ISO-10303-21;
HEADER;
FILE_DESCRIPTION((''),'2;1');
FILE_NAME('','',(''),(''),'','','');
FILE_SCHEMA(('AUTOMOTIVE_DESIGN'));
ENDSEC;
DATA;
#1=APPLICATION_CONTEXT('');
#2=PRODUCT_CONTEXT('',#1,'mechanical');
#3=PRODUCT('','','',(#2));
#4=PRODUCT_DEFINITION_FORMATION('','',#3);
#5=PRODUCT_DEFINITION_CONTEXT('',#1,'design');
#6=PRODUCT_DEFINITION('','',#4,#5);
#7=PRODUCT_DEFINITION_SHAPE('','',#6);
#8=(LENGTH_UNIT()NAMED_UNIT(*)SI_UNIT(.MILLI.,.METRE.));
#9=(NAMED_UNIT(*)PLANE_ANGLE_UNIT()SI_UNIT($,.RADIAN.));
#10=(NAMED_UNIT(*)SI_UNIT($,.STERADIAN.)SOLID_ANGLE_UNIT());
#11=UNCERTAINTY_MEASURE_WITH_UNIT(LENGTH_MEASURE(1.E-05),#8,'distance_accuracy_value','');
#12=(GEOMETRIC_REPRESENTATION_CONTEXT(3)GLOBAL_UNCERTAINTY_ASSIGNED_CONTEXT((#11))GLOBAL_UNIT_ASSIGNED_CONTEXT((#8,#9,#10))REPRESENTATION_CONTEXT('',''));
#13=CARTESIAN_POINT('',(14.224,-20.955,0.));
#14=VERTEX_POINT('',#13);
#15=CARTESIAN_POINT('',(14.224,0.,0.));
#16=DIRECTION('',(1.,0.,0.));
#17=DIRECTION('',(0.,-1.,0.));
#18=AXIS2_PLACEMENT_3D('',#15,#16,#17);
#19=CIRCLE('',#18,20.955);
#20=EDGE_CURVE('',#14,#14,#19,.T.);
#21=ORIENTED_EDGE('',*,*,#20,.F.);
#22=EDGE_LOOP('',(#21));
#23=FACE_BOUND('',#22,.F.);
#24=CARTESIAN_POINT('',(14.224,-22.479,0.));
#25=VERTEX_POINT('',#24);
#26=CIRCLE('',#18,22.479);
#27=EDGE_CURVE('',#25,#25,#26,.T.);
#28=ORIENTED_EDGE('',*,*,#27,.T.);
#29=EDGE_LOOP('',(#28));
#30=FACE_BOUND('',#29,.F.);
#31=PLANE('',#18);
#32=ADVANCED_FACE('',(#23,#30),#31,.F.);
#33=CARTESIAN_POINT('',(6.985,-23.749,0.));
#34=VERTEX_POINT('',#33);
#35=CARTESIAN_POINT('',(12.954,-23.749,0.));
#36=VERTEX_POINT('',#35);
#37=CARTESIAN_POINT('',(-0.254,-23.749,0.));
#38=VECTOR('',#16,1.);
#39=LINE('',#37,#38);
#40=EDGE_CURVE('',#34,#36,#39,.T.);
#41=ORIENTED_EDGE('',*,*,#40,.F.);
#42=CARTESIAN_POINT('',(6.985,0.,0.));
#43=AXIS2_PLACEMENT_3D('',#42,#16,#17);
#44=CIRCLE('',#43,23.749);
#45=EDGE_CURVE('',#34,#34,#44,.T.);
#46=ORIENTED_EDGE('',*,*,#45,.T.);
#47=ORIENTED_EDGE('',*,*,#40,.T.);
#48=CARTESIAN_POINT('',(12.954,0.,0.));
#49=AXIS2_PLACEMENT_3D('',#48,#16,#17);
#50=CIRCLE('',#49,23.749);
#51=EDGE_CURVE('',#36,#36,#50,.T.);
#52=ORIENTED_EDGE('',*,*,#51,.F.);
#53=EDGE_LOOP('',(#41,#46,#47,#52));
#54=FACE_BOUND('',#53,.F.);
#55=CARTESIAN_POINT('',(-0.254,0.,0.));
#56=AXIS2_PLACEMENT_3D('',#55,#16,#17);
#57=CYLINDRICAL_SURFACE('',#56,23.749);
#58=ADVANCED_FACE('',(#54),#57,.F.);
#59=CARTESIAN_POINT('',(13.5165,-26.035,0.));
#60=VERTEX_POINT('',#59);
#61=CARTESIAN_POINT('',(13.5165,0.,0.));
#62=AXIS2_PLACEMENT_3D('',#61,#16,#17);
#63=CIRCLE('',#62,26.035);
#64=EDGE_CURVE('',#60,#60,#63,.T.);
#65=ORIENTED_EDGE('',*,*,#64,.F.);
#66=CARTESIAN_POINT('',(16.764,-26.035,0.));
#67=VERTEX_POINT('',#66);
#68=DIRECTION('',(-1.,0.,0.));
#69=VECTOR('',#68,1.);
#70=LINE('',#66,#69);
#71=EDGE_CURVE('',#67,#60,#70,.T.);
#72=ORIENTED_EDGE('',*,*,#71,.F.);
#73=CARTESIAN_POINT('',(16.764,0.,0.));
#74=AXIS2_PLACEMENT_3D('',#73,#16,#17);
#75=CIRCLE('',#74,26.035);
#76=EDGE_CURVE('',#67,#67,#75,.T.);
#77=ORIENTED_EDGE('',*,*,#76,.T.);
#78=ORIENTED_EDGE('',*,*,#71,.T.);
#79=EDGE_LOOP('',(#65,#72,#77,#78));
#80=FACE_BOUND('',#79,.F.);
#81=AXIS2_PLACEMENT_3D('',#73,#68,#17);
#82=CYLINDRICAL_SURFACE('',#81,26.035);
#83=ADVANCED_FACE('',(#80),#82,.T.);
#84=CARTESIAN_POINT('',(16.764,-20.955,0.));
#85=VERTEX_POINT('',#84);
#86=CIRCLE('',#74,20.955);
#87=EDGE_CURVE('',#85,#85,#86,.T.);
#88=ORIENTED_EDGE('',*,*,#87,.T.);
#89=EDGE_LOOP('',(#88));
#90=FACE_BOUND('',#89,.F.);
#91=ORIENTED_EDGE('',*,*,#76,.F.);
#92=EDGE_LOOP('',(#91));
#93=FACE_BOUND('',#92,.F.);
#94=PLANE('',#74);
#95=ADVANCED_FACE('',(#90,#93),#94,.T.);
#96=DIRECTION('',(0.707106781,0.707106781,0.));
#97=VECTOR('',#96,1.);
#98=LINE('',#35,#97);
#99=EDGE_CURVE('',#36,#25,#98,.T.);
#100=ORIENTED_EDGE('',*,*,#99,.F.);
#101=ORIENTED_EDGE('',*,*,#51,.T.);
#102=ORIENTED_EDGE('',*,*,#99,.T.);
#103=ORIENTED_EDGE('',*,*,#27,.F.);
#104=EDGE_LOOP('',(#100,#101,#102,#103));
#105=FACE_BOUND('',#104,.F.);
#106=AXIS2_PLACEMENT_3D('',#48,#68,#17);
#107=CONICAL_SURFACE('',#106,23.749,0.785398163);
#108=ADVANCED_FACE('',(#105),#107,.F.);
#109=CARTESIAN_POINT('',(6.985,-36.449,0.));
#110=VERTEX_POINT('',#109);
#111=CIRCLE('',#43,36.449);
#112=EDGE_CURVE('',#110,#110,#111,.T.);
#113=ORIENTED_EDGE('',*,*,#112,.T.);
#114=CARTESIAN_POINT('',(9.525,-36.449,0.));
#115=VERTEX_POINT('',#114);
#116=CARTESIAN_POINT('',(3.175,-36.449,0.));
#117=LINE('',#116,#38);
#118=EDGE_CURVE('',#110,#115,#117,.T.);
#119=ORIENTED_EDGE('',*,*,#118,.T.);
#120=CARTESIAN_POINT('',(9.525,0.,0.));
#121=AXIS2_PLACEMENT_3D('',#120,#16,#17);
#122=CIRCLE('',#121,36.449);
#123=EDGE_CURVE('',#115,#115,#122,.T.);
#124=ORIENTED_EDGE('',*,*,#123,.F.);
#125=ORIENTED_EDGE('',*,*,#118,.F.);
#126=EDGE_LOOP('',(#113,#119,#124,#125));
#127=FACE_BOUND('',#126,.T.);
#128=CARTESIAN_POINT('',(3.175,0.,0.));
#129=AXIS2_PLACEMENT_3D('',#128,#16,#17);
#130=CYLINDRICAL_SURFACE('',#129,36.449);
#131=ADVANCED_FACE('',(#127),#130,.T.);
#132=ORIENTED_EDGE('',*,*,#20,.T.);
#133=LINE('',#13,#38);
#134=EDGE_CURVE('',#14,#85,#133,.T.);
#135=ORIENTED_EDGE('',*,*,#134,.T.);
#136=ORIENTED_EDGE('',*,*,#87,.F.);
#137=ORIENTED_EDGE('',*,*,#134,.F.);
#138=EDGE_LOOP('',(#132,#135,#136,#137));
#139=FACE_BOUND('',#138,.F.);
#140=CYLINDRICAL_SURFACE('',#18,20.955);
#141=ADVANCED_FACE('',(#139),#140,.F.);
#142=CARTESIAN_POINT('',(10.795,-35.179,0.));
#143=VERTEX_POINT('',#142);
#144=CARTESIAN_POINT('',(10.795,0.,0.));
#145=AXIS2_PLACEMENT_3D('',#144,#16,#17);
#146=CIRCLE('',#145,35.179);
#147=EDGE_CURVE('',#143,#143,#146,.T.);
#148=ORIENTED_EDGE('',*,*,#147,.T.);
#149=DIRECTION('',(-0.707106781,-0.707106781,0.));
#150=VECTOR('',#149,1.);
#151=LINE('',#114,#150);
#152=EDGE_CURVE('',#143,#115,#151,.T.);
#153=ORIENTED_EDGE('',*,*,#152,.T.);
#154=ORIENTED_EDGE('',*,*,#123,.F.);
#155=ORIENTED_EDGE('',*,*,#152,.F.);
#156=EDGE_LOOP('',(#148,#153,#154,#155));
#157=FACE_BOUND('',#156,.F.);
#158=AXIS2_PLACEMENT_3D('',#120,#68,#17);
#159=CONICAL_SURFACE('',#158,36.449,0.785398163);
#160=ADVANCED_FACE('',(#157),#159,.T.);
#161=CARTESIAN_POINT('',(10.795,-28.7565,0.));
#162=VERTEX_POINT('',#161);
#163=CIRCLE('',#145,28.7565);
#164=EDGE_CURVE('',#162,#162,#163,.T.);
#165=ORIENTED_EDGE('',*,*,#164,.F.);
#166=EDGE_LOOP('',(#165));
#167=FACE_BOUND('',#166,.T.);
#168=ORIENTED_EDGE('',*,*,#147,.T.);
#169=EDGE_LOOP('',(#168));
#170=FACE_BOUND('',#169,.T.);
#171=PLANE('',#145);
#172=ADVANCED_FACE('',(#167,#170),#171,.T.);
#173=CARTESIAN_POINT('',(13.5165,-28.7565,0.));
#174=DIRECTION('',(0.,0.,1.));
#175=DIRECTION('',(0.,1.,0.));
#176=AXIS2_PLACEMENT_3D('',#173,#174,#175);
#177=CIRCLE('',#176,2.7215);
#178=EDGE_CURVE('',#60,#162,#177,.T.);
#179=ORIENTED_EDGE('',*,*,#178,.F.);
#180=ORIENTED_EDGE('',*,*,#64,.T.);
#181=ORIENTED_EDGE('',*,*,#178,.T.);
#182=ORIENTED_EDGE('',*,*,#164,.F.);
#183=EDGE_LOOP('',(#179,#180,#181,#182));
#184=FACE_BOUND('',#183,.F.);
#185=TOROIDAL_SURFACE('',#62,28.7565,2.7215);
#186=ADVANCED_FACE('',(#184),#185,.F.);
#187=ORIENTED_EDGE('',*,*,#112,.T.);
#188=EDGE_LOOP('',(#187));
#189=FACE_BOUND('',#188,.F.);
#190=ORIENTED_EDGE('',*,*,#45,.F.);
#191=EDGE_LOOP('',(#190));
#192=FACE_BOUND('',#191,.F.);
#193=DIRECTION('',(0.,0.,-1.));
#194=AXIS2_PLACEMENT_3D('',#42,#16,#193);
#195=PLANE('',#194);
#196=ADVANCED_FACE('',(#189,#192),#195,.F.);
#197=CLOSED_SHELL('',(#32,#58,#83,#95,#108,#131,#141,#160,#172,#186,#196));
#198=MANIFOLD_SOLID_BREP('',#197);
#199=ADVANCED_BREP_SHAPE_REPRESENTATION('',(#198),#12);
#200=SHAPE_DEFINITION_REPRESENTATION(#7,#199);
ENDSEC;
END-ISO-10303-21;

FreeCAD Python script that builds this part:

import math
import FreeCAD as App
import Part
import Sketcher
Q = App.Units.Quantity


def edges_at(feature, points):
    """Names of the edges that pass closest to the given points."""
    edges = feature.Shape.Edges
    near = lambda p: min(range(len(edges)), key=lambda i: edges[i].distToShape(Part.Vertex(*p))[0])
    return sorted({f"Edge{near(p) + 1}" for p in points})

doc = App.newDocument("Part")
params = doc.addObject("Spreadsheet::Sheet", "Params")
for row, (alias, value) in enumerate([
    ("sketch1_width", "0.3 in"),
    ("sketch1_width2", "0.1 in"),
    ("sketch1_height", "0.2 in"),
    ("sketch1_width3", "0.57 in"),
    ("sketch1_height2", "0.11 in"),
    ("revolution_angle", "360 deg"),
    ("chamfer_size", "0.05 in"),
    ("chamfer2_size", "0.05 in"),
], start=1):
    params.set(f"A{row}", alias)
    params.set(f"B{row}", "=" + value)
    params.setAlias(f"B{row}", alias)

body = doc.addObject("PartDesign::Body", "Body")

# Sketch on XY plane
sketch1 = body.newObject("Sketcher::SketchObject", "Sketch")
sketch1.AttachmentSupport = (doc.getObject("XY_Plane"), [""])
sketch1.MapMode = "FlatFace"
sketch1.addGeometry([
    Part.LineSegment(App.Vector(3.2, -28.8, 0), App.Vector(3.2, -36.4, 0)),  # 0
    Part.LineSegment(App.Vector(3.2, -36.4, 0), App.Vector(10.8, -36.4, 0)),  # 1
    Part.LineSegment(App.Vector(10.8, -36.4, 0), App.Vector(10.8, -28.8, 0)),  # 2
    Part.ArcOfCircle(Part.Circle(App.Vector(13.5, -28.8, 0), App.Vector(0, 0, 1), 2.7), math.radians(90), math.radians(180)),  # 3
    Part.LineSegment(App.Vector(13.5, -26, 0), App.Vector(16.8, -26, 0)),  # 4
    Part.LineSegment(App.Vector(16.8, -26, 0), App.Vector(16.8, -21, 0)),  # 5
    Part.LineSegment(App.Vector(16.8, -21, 0), App.Vector(14.2, -21, 0)),  # 6
    Part.LineSegment(App.Vector(14.2, -21, 0), App.Vector(14.2, -23.7, 0)),  # 7
    Part.LineSegment(App.Vector(14.2, -23.7, 0), App.Vector(-0.3, -23.7, 0)),  # 8
    Part.LineSegment(App.Vector(-0.3, -23.7, 0), App.Vector(-0.3, -21, 0)),  # 9
    Part.LineSegment(App.Vector(-0.3, -21, 0), App.Vector(-2.8, -21, 0)),  # 10
    Part.LineSegment(App.Vector(-2.8, -21, 0), App.Vector(-2.8, -26, 0)),  # 11
    Part.LineSegment(App.Vector(-2.8, -26, 0), App.Vector(0.5, -26, 0)),  # 12
    Part.ArcOfCircle(Part.Circle(App.Vector(0.5, -28.8, 0), App.Vector(0, 0, 1), 2.7), math.radians(0), math.radians(90)),  # 13
], False)
sketch1.addConstraint([
    Sketcher.Constraint("Coincident", 0, 2, 1, 1),
    Sketcher.Constraint("Coincident", 1, 2, 2, 1),
    Sketcher.Constraint("Tangent", 2, 2, 3, 2),
    Sketcher.Constraint("Tangent", 3, 1, 4, 1),
    Sketcher.Constraint("Coincident", 4, 2, 5, 1),
    Sketcher.Constraint("Coincident", 5, 2, 6, 1),
    Sketcher.Constraint("Coincident", 6, 2, 7, 1),
    Sketcher.Constraint("Coincident", 7, 2, 8, 1),
    Sketcher.Constraint("Coincident", 8, 2, 9, 1),
    Sketcher.Constraint("Coincident", 9, 2, 10, 1),
    Sketcher.Constraint("Coincident", 10, 2, 11, 1),
    Sketcher.Constraint("Coincident", 11, 2, 12, 1),
    Sketcher.Constraint("Tangent", 12, 2, 13, 2),
    Sketcher.Constraint("Tangent", 13, 1, 0, 1),
    Sketcher.Constraint("Vertical", 0),
    Sketcher.Constraint("Horizontal", 1),
    Sketcher.Constraint("Vertical", 2),
    Sketcher.Constraint("Horizontal", 4),
    Sketcher.Constraint("Vertical", 5),
    Sketcher.Constraint("Horizontal", 6),
    Sketcher.Constraint("Vertical", 7),
    Sketcher.Constraint("Horizontal", 8),
    Sketcher.Constraint("Vertical", 9),
    Sketcher.Constraint("Horizontal", 10),
    Sketcher.Constraint("Vertical", 11),
    Sketcher.Constraint("Horizontal", 12),
    Sketcher.Constraint("Equal", 3, 13),
    Sketcher.Constraint("Horizontal", 3, 3, 13, 3),
    Sketcher.Constraint("Horizontal", 6, 2, 9, 2),
    Sketcher.Constraint("Equal", 6, 10),
    Sketcher.Constraint("Equal", 4, 12),
    Sketcher.Constraint("DistanceX", 1, 1, 1, 2, Q("0.3 in")),
    Sketcher.Constraint("DistanceX", 6, 2, 6, 1, Q("0.1 in")),
    Sketcher.Constraint("DistanceY", 0, 2, 8, 2, Q("0.5 in")),
    Sketcher.Constraint("DistanceX", 8, 2, -1, 1, Q("0.01 in")),
    Sketcher.Constraint("DistanceY", 5, 1, 5, 2, Q("0.2 in")),
    Sketcher.Constraint("DistanceX", 8, 2, 8, 1, Q("0.57 in")),
    Sketcher.Constraint("DistanceY", 7, 2, 7, 1, Q("0.11 in")),
    Sketcher.Constraint("Radius", 3, Q("2.7215 mm")),
    Sketcher.Constraint("DistanceY", 0, 2, -1, 1, Q("1.435 in")),
])
sketch1.setExpression("Constraints[31]", "Params.sketch1_width")
sketch1.setExpression("Constraints[32]", "Params.sketch1_width2")
sketch1.setExpression("Constraints[35]", "Params.sketch1_height")
sketch1.setExpression("Constraints[36]", "Params.sketch1_width3")
sketch1.setExpression("Constraints[37]", "Params.sketch1_height2")
revolution = body.newObject("PartDesign::Revolution", "Revolution")
revolution.Profile = sketch1
revolution.ReferenceAxis = (sketch1, ["H_Axis"])
revolution.setExpression("Angle", "Params.revolution_angle")
doc.recompute()

chamfer = body.newObject("PartDesign::Chamfer", "Chamfer")
chamfer.Base = (revolution, edges_at(revolution, [(10.795, 36.449, 0), (3.175, 36.449, 0)]))
chamfer.setExpression("Size", "Params.chamfer_size")

# Sketch on YZ plane
sketch2 = body.newObject("Sketcher::SketchObject", "Sketch001")
sketch2.AttachmentSupport = (doc.getObject("YZ_Plane"), [""])
sketch2.MapMode = "FlatFace"
sketch2.AttachmentOffset = App.Placement(App.Vector(0, 0, 0.275 * 25.4), App.Rotation())
sketch2.addGeometry([
    Part.LineSegment(App.Vector(-58, 59, 0), App.Vector(-58, -59, 0)),
    Part.LineSegment(App.Vector(-58, -59, 0), App.Vector(58, -59, 0)),
    Part.LineSegment(App.Vector(58, -59, 0), App.Vector(58, 59, 0)),
    Part.LineSegment(App.Vector(58, 59, 0), App.Vector(-58, 59, 0)),
], False)
sketch2.addConstraint([
    Sketcher.Constraint("Coincident", 0, 2, 1, 1),
    Sketcher.Constraint("Coincident", 1, 2, 2, 1),
    Sketcher.Constraint("Coincident", 2, 2, 3, 1),
    Sketcher.Constraint("Coincident", 3, 2, 0, 1),
    Sketcher.Constraint("Vertical", 0),
    Sketcher.Constraint("Horizontal", 1),
    Sketcher.Constraint("Vertical", 2),
    Sketcher.Constraint("Horizontal", 3),
    Sketcher.Constraint("Symmetric", 0, 2, 2, 2, -1, 1),
    Sketcher.Constraint("DistanceX", 1, 1, 1, 2, Q("115.53 mm")),
    Sketcher.Constraint("DistanceY", 0, 2, 0, 1, Q("117.812 mm")),
])
pocket1 = body.newObject("PartDesign::Pocket", "Pocket")
pocket1.Profile = sketch2
pocket1.Type = "ThroughAll"
doc.recompute()

chamfer2 = body.newObject("PartDesign::Chamfer", "Chamfer001")
chamfer2.Base = (pocket1, edges_at(pocket1, [(14.224, 23.749, 0)]))
chamfer2.setExpression("Size", "Params.chamfer2_size")

doc.recompute()
